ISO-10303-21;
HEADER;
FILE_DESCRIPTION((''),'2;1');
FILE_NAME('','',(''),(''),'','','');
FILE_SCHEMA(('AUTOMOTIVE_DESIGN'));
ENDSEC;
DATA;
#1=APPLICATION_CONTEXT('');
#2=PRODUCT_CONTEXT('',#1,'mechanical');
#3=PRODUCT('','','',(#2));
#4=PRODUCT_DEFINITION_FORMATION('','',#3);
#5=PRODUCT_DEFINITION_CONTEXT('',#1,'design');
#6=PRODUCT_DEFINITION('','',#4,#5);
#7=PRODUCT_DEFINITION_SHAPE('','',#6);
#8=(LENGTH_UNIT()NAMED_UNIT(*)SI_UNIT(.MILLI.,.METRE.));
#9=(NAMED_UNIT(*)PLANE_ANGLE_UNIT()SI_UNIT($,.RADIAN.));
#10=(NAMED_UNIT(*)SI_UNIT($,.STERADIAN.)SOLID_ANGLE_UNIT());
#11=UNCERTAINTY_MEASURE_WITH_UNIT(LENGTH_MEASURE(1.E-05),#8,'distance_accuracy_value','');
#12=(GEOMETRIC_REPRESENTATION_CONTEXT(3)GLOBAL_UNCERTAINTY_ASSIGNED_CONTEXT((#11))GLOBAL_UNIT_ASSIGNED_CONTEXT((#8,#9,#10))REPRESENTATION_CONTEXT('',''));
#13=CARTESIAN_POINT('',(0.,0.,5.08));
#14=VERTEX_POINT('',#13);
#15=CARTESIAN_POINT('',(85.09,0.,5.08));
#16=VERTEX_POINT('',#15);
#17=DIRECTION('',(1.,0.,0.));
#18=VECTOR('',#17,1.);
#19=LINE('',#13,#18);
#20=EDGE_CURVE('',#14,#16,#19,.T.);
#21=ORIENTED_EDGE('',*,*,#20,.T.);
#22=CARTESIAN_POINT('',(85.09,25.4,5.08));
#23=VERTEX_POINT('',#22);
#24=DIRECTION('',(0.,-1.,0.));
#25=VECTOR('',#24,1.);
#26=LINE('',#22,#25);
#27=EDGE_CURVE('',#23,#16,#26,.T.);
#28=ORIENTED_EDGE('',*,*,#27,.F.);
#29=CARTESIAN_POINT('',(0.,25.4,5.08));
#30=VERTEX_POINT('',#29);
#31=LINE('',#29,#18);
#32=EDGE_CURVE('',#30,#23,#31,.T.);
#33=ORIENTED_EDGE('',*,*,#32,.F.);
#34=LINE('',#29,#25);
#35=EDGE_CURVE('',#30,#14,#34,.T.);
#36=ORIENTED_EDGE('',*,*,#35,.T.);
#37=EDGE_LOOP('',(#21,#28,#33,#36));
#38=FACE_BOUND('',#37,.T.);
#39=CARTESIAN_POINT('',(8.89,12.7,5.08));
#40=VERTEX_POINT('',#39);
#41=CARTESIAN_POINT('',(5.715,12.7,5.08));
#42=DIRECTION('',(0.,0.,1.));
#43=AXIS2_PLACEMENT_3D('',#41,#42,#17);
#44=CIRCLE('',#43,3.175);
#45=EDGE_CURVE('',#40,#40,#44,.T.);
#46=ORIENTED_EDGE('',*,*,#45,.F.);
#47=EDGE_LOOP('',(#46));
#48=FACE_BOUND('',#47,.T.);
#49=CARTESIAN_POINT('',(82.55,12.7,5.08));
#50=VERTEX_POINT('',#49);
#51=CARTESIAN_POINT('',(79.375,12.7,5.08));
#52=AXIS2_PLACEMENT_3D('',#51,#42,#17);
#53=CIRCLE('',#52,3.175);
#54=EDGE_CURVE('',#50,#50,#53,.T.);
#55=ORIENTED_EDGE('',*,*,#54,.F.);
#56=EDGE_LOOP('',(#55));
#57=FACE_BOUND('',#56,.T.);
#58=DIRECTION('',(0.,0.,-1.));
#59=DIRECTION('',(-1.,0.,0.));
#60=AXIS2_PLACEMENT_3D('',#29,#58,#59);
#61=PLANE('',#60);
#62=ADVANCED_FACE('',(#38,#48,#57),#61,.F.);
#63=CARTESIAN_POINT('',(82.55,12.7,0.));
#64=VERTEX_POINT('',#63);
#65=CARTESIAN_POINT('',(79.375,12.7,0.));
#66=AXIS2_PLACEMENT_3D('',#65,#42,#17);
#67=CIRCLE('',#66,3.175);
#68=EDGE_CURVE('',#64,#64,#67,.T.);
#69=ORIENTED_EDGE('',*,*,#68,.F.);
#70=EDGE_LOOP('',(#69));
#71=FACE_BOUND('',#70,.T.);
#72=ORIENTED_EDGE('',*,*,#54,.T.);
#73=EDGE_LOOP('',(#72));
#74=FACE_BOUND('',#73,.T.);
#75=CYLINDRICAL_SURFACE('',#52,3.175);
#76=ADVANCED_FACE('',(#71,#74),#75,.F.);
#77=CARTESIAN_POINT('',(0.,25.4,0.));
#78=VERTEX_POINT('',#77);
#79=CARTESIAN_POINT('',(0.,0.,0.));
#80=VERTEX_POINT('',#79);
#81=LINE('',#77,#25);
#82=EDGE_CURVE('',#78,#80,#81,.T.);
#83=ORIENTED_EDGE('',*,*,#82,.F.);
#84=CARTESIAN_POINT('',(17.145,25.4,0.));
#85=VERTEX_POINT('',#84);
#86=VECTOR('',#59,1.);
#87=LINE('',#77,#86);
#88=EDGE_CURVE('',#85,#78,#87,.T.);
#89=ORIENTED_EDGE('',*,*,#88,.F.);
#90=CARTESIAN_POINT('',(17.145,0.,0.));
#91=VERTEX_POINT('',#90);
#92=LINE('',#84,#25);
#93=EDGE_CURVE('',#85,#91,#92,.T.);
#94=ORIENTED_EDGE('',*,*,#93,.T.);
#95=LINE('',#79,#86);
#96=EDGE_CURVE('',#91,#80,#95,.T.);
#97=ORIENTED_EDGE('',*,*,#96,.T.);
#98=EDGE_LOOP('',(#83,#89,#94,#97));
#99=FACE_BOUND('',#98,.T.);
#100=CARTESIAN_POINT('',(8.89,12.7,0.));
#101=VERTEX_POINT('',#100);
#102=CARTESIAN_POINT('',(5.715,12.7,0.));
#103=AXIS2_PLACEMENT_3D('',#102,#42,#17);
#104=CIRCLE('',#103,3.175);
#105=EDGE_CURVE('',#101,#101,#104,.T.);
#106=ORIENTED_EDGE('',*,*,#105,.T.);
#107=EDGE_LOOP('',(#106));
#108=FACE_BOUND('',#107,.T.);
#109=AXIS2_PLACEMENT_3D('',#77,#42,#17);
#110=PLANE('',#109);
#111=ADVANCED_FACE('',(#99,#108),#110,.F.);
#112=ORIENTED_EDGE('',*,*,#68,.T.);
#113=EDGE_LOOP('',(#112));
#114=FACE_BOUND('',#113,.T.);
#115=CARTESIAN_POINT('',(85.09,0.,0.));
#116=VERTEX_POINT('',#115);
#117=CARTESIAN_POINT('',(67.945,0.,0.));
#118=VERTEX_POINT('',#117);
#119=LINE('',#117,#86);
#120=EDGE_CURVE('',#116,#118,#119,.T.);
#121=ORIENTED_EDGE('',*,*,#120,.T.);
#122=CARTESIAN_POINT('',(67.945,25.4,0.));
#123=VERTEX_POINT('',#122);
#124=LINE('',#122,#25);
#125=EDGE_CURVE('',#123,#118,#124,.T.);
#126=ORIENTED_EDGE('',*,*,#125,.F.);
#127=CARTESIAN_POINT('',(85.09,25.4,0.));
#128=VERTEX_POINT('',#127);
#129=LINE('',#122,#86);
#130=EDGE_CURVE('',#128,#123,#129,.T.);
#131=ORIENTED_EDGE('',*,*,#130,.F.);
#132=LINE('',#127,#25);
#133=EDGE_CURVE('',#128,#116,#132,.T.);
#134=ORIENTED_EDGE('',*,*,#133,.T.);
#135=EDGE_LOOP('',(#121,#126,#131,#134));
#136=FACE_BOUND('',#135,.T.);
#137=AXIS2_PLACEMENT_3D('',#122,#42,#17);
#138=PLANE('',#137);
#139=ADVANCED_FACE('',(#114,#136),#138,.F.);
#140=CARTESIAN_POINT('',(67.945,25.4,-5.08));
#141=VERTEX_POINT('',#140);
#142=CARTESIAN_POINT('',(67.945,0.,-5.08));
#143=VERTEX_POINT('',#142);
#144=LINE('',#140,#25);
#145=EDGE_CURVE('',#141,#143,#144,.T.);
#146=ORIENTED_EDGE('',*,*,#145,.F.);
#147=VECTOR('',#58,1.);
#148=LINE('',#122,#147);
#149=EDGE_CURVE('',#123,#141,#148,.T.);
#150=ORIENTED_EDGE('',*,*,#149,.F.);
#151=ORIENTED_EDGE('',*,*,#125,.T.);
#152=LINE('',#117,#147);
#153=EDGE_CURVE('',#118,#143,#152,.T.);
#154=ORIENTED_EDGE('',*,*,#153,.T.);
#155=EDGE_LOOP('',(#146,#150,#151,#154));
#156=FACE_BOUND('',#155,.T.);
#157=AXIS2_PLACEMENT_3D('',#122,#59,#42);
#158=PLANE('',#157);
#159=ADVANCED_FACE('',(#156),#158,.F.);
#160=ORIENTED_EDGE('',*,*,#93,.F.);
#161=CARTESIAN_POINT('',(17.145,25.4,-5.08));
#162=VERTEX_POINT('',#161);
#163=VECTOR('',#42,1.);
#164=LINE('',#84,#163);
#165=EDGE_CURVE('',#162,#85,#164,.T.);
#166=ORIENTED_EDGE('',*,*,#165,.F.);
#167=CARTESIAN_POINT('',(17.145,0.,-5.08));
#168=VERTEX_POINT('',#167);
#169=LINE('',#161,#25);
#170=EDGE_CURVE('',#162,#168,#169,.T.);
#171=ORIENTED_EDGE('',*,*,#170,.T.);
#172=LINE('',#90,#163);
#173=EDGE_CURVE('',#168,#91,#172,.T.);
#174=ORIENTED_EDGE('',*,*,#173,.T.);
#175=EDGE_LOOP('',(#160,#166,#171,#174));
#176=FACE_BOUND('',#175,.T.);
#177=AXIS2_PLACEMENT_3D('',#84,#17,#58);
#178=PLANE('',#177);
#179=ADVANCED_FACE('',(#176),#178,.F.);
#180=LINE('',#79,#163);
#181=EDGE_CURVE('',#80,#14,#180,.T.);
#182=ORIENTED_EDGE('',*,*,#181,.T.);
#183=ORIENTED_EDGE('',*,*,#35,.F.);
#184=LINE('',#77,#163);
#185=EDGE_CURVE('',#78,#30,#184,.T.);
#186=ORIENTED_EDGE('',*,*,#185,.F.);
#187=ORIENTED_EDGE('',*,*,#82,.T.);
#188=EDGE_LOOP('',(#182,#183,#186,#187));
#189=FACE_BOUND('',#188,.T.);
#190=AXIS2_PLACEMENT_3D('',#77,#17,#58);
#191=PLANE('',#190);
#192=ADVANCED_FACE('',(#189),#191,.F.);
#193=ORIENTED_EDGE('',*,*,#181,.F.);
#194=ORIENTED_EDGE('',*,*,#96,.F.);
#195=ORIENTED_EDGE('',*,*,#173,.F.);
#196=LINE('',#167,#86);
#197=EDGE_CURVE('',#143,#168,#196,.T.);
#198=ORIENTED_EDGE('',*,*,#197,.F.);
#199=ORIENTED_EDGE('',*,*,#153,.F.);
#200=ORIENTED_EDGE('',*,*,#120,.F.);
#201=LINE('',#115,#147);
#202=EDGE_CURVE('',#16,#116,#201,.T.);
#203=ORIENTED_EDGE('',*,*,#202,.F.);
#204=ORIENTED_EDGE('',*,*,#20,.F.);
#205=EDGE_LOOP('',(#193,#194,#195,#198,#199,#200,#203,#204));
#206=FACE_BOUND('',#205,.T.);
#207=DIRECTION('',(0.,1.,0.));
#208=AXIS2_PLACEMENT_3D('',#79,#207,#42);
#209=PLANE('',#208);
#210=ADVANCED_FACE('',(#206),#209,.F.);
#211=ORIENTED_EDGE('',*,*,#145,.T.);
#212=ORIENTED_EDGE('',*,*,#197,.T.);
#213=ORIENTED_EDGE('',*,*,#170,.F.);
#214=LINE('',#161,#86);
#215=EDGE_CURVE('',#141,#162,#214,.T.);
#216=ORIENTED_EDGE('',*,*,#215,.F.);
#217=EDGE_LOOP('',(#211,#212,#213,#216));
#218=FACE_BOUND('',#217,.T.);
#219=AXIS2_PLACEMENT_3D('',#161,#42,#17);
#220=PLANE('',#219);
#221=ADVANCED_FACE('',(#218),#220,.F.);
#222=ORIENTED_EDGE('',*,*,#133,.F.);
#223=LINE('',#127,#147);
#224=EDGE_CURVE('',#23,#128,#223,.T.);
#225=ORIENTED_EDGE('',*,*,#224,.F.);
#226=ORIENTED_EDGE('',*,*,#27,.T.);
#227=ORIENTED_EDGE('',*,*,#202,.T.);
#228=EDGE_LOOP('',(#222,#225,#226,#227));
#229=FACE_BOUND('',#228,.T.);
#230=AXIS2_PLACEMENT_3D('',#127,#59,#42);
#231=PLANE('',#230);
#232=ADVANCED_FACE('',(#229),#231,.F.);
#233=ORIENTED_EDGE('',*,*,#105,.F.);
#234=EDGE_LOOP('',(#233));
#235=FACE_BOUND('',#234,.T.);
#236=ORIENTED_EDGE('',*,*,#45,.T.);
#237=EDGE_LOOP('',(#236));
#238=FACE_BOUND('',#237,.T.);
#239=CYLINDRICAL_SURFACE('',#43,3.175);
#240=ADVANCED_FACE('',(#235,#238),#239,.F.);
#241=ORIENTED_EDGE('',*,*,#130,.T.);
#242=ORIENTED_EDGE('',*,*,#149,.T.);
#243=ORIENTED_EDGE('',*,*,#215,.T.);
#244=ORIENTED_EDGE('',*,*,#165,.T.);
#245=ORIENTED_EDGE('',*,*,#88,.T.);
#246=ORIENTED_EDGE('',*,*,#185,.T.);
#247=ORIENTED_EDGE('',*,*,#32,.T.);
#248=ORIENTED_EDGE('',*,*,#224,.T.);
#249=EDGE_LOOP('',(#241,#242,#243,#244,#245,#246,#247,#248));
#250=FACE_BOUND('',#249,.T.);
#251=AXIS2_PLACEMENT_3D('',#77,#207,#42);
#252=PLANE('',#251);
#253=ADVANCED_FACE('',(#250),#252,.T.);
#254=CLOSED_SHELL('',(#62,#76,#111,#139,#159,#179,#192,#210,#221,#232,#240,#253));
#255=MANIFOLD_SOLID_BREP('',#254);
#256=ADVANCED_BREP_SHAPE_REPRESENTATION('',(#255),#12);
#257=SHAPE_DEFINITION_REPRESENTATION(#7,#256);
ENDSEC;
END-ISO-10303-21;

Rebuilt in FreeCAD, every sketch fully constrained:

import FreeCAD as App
import Part
import Sketcher
from FreeCAD import Vector
Q = App.Units.Quantity

doc = App.newDocument("Part")
body = doc.addObject("PartDesign::Body", "Body")

# Sketch on XZ plane
sketch1 = body.newObject("Sketcher::SketchObject", "Sketch")
sketch1.AttachmentSupport = (doc.getObject("XZ_Plane"), [""])
sketch1.MapMode = "FlatFace"
sketch1.addGeometry(Part.LineSegment(Vector(85, 0, 0), Vector(68, 0, 0)), False)
sketch1.addGeometry(Part.LineSegment(Vector(68, 0, 0), Vector(68, -5, 0)), False)
sketch1.addGeometry(Part.LineSegment(Vector(68, -5, 0), Vector(17, -5, 0)), False)
sketch1.addGeometry(Part.LineSegment(Vector(17, -5, 0), Vector(17, 0, 0)), False)
sketch1.addGeometry(Part.LineSegment(Vector(17, 0, 0), Vector(0, 0, 0)), False)
sketch1.addGeometry(Part.LineSegment(Vector(0, 0, 0), Vector(0, 5, 0)), False)
sketch1.addGeometry(Part.LineSegment(Vector(0, 5, 0), Vector(85, 5, 0)), False)
sketch1.addGeometry(Part.LineSegment(Vector(85, 5, 0), Vector(85, 0, 0)), False)
sketch1.addConstraint(Sketcher.Constraint("Coincident", 0, 2, 1, 1))
sketch1.addConstraint(Sketcher.Constraint("Coincident", 1, 2, 2, 1))
sketch1.addConstraint(Sketcher.Constraint("Coincident", 2, 2, 3, 1))
sketch1.addConstraint(Sketcher.Constraint("Coincident", 3, 2, 4, 1))
sketch1.addConstraint(Sketcher.Constraint("Coincident", 4, 2, 5, 1))
sketch1.addConstraint(Sketcher.Constraint("Coincident", 5, 2, 6, 1))
sketch1.addConstraint(Sketcher.Constraint("Coincident", 6, 2, 7, 1))
sketch1.addConstraint(Sketcher.Constraint("Coincident", 7, 2, 0, 1))
sketch1.addConstraint(Sketcher.Constraint("Horizontal", 0))
sketch1.addConstraint(Sketcher.Constraint("Vertical", 1))
sketch1.addConstraint(Sketcher.Constraint("Horizontal", 2))
sketch1.addConstraint(Sketcher.Constraint("Vertical", 3))
sketch1.addConstraint(Sketcher.Constraint("Horizontal", 4))
sketch1.addConstraint(Sketcher.Constraint("Vertical", 5))
sketch1.addConstraint(Sketcher.Constraint("Horizontal", 6))
sketch1.addConstraint(Sketcher.Constraint("Vertical", 7))
sketch1.addConstraint(Sketcher.Constraint("Coincident", 4, 2, -1, 1))
sketch1.addConstraint(Sketcher.Constraint("PointOnObject", 0, 2, -1))
sketch1.addConstraint(Sketcher.Constraint("Equal", 0, 4))
sketch1.addConstraint(Sketcher.Constraint("Equal", 3, 5))
sketch1.addConstraint(Sketcher.Constraint("DistanceX", 2, 2, 2, 1, Q("2 in")))
sketch1.addConstraint(Sketcher.Constraint("DistanceY", 1, 2, 1, 1, Q("0.2 in")))
sketch1.addConstraint(Sketcher.Constraint("DistanceX", 6, 1, 6, 2, Q("3.35 in")))
pad1 = body.newObject("PartDesign::Pad", "Pad")
pad1.Profile = sketch1
pad1.Length = Q("1 in")
pad1.Reversed = True

# Sketch on XY plane
sketch2 = body.newObject("Sketcher::SketchObject", "Sketch001")
sketch2.AttachmentSupport = (doc.getObject("XY_Plane"), [""])
sketch2.MapMode = "FlatFace"
sketch2.AttachmentOffset = App.Placement(Vector(0, 0, 0.2 * 25.4), App.Rotation())
sketch2.addGeometry(Part.Circle(Vector(5.7, 12.7, 0), Vector(0, 0, 1), 3.2), False)
sketch2.addGeometry(Part.Circle(Vector(79.4, 12.7, 0), Vector(0, 0, 1), 3.2), False)
sketch2.addConstraint(Sketcher.Constraint("Equal", 0, 1))
sketch2.addConstraint(Sketcher.Constraint("Horizontal", 0, 3, 1, 3))
sketch2.addConstraint(Sketcher.Constraint("Diameter", 0, Q("0.25 in")))
sketch2.addConstraint(Sketcher.Constraint("DistanceY", -1, 1, 0, 3, Q("0.5 in")))
sketch2.addConstraint(Sketcher.Constraint("DistanceX", 0, 3, 1, 3, Q("2.9 in")))
sketch2.addConstraint(Sketcher.Constraint("DistanceX", -1, 1, 0, 3, Q("0.225 in")))
doc.recompute()
hole = body.newObject("PartDesign::Hole", "Hole")
hole.Profile = sketch2
hole.ThreadType = "None"
hole.Diameter = Q("0.25 in")
hole.DepthType = "ThroughAll"

doc.recompute()
